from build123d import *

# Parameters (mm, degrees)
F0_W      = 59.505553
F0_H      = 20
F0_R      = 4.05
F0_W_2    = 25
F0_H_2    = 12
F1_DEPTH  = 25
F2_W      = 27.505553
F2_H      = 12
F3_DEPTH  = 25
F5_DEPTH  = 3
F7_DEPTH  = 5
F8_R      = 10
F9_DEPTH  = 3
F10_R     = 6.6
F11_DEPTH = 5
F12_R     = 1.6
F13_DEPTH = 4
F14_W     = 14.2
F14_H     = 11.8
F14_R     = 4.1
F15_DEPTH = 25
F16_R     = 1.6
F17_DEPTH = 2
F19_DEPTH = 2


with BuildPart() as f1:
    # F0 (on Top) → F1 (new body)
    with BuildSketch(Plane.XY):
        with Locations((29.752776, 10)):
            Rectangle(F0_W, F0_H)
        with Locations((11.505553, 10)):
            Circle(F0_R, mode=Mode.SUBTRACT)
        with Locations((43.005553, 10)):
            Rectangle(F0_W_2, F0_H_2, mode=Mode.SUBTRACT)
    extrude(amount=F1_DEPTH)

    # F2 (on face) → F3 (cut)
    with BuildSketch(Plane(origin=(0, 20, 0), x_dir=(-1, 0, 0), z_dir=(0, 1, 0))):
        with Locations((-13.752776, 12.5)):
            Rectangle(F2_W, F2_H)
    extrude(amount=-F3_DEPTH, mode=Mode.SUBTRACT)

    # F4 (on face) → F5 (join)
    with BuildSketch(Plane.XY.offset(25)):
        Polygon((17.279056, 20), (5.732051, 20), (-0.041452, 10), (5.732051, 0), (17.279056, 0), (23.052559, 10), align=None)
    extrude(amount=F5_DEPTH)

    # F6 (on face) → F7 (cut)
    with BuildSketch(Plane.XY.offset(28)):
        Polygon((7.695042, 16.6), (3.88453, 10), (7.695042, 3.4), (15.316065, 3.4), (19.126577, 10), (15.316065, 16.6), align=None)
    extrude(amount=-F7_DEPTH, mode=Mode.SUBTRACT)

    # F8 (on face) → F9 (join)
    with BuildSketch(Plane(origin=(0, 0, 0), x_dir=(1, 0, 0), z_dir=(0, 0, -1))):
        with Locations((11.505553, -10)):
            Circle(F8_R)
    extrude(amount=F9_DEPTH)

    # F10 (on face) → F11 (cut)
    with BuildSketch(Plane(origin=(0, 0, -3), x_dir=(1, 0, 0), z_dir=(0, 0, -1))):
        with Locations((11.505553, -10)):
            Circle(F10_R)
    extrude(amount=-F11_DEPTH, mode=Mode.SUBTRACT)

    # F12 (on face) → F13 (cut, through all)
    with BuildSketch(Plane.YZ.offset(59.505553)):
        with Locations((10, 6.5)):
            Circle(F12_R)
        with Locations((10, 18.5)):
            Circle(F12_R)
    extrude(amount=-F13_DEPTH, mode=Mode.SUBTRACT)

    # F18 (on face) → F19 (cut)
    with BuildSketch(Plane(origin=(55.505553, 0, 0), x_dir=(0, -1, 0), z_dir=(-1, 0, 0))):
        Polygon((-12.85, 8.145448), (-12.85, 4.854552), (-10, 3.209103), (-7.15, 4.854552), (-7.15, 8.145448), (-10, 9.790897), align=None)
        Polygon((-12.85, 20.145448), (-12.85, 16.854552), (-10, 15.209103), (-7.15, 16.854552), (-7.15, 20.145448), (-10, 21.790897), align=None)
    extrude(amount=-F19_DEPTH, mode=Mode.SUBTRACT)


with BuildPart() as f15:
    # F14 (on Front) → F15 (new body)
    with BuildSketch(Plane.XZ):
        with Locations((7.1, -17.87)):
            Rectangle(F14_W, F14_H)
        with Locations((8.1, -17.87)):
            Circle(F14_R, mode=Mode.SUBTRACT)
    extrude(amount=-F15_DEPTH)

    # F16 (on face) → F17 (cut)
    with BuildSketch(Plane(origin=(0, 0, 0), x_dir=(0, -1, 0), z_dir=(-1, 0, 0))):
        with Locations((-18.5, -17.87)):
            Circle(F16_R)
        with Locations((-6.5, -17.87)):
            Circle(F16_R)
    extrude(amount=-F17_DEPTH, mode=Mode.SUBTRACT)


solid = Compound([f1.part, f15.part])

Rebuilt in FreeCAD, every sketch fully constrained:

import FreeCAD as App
import Part
import Sketcher

V = App.Vector
Q = App.Units.Quantity

doc = App.newDocument("Part")
body = doc.addObject("PartDesign::Body", "Body")

# Sketch on XY plane
sketch1 = body.newObject("Sketcher::SketchObject", "Sketch")
sketch1.AttachmentSupport = (doc.getObject("XY_Plane"), [""])
sketch1.MapMode = "FlatFace"
sketch1.addGeometry(Part.LineSegment(V(0, 20, 0), V(0, 0, 0)), False)
sketch1.addGeometry(Part.LineSegment(V(0, 0, 0), V(59.5, 0, 0)), False)
sketch1.addGeometry(Part.LineSegment(V(59.5, 0, 0), V(59.5, 20, 0)), False)
sketch1.addGeometry(Part.LineSegment(V(59.5, 20, 0), V(0, 20, 0)), False)
sketch1.addGeometry(Part.Circle(V(11.5, 10, 0), V(0, 0, 1), 4), False)
sketch1.addGeometry(Part.LineSegment(V(55.5, 4, 0), V(30.5, 4, 0)), False)
sketch1.addGeometry(Part.LineSegment(V(30.5, 4, 0), V(30.5, 16, 0)), False)
sketch1.addGeometry(Part.LineSegment(V(30.5, 16, 0), V(55.5, 16, 0)), False)
sketch1.addGeometry(Part.LineSegment(V(55.5, 16, 0), V(55.5, 4, 0)), False)
sketch1.addConstraint(Sketcher.Constraint("Coincident", 0, 2, 1, 1))
sketch1.addConstraint(Sketcher.Constraint("Coincident", 1, 2, 2, 1))
sketch1.addConstraint(Sketcher.Constraint("Coincident", 2, 2, 3, 1))
sketch1.addConstraint(Sketcher.Constraint("Coincident", 3, 2, 0, 1))
sketch1.addConstraint(Sketcher.Constraint("Coincident", 5, 2, 6, 1))
sketch1.addConstraint(Sketcher.Constraint("Coincident", 6, 2, 7, 1))
sketch1.addConstraint(Sketcher.Constraint("Coincident", 7, 2, 8, 1))
sketch1.addConstraint(Sketcher.Constraint("Coincident", 8, 2, 5, 1))
sketch1.addConstraint(Sketcher.Constraint("Vertical", 0))
sketch1.addConstraint(Sketcher.Constraint("Horizontal", 1))
sketch1.addConstraint(Sketcher.Constraint("Vertical", 2))
sketch1.addConstraint(Sketcher.Constraint("Horizontal", 3))
sketch1.addConstraint(Sketcher.Constraint("Horizontal", 5))
sketch1.addConstraint(Sketcher.Constraint("Vertical", 6))
sketch1.addConstraint(Sketcher.Constraint("Horizontal", 7))
sketch1.addConstraint(Sketcher.Constraint("Vertical", 8))
sketch1.addConstraint(Sketcher.Constraint("Coincident", 0, 2, -1, 1))
sketch1.addConstraint(Sketcher.Constraint("Diameter", 4, 8.1))
sketch1.addConstraint(Sketcher.Constraint("DistanceX", 5, 2, 5, 1, 25.0))
sketch1.addConstraint(Sketcher.Constraint("DistanceY", 0, 2, 0, 1, 20.0))
sketch1.addConstraint(Sketcher.Constraint("DistanceY", 6, 1, 6, 2, 12.0))
sketch1.addConstraint(Sketcher.Constraint("DistanceY", -1, 1, 4, 3, 10.0))
sketch1.addConstraint(Sketcher.Constraint("DistanceY", -1, 1, 5, 2, 4.0))
sketch1.addConstraint(Sketcher.Constraint("DistanceX", 4, 3, 1, 2, 48.0))
sketch1.addConstraint(Sketcher.Constraint("DistanceX", 4, 3, 5, 2, 19.0))
sketch1.addConstraint(Sketcher.Constraint("DistanceX", 1, 1, 1, 2, 59.505553))
pad1 = body.newObject("PartDesign::Pad", "Pad")
pad1.Profile = sketch1
pad1.Length = 25

# Sketch on XZ plane
sketch2 = body.newObject("Sketcher::SketchObject", "Sketch001")
sketch2.AttachmentSupport = (doc.getObject("XZ_Plane"), [""])
sketch2.MapMode = "FlatFace"
sketch2.AttachmentOffset = App.Placement(V(0, 0, -20), App.Rotation())
sketch2.addGeometry(Part.LineSegment(V(28, 18, 0), V(28, 6, 0)), False)
sketch2.addGeometry(Part.LineSegment(V(28, 6, 0), V(0, 6, 0)), False)
sketch2.addGeometry(Part.LineSegment(V(0, 6, 0), V(0, 18, 0)), False)
sketch2.addGeometry(Part.LineSegment(V(0, 18, 0), V(28, 18, 0)), False)
sketch2.addConstraint(Sketcher.Constraint("Coincident", 0, 2, 1, 1))
sketch2.addConstraint(Sketcher.Constraint("Coincident", 1, 2, 2, 1))
sketch2.addConstraint(Sketcher.Constraint("Coincident", 2, 2, 3, 1))
sketch2.addConstraint(Sketcher.Constraint("Coincident", 3, 2, 0, 1))
sketch2.addConstraint(Sketcher.Constraint("Vertical", 0))
sketch2.addConstraint(Sketcher.Constraint("Horizontal", 1))
sketch2.addConstraint(Sketcher.Constraint("Vertical", 2))
sketch2.addConstraint(Sketcher.Constraint("Horizontal", 3))
sketch2.addConstraint(Sketcher.Constraint("PointOnObject", 1, 2, -2))
sketch2.addConstraint(Sketcher.Constraint("DistanceY", 0, 2, 0, 1, 12.0))
sketch2.addConstraint(Sketcher.Constraint("DistanceY", -1, 1, 0, 2, 6.5))
sketch2.addConstraint(Sketcher.Constraint("DistanceX", 1, 2, 1, 1, 27.505553))
pocket1 = body.newObject("PartDesign::Pocket", "Pocket")
pocket1.Profile = sketch2
pocket1.Length = 25
pocket1.Reversed = True

# Sketch on XY plane
sketch3 = body.newObject("Sketcher::SketchObject", "Sketch002")
sketch3.AttachmentSupport = (doc.getObject("XY_Plane"), [""])
sketch3.MapMode = "FlatFace"
sketch3.AttachmentOffset = App.Placement(V(0, 0, 25), App.Rotation())
sketch3.addGeometry(Part.LineSegment(V(17, 20, 0), V(6, 20, 0)), False)
sketch3.addGeometry(Part.LineSegment(V(6, 20, 0), V(0, 10, 0)), False)
sketch3.addGeometry(Part.LineSegment(V(0, 10, 0), V(6, 0, 0)), False)
sketch3.addGeometry(Part.LineSegment(V(6, 0, 0), V(17, 0, 0)), False)
sketch3.addGeometry(Part.LineSegment(V(17, 0, 0), V(23, 10, 0)), False)
sketch3.addGeometry(Part.LineSegment(V(23, 10, 0), V(17, 20, 0)), False)
sketch3.addConstraint(Sketcher.Constraint("Coincident", 0, 2, 1, 1))
sketch3.addConstraint(Sketcher.Constraint("Coincident", 1, 2, 2, 1))
sketch3.addConstraint(Sketcher.Constraint("Coincident", 2, 2, 3, 1))
sketch3.addConstraint(Sketcher.Constraint("Coincident", 3, 2, 4, 1))
sketch3.addConstraint(Sketcher.Constraint("Coincident", 4, 2, 5, 1))
sketch3.addConstraint(Sketcher.Constraint("Coincident", 5, 2, 0, 1))
sketch3.addConstraint(Sketcher.Constraint("Horizontal", 0))
sketch3.addConstraint(Sketcher.Constraint("Horizontal", 3))
sketch3.addConstraint(Sketcher.Constraint("PointOnObject", 2, 2, -1))
sketch3.addConstraint(Sketcher.Constraint("Parallel", 1, 4))
sketch3.addConstraint(Sketcher.Constraint("Parallel", 2, 5))
sketch3.addConstraint(Sketcher.Constraint("Horizontal", 1, 2, 4, 2))
sketch3.addConstraint(Sketcher.Constraint("Vertical", 0, 2, 2, 2))
sketch3.addConstraint(Sketcher.Constraint("Vertical", 3, 2, 5, 2))
sketch3.addConstraint(Sketcher.Constraint("Angle", 1, Q("-120.000001 deg")))
sketch3.addConstraint(Sketcher.Constraint("DistanceY", -1, 1, 0, 2, 20.0))
sketch3.addConstraint(Sketcher.Constraint("DistanceX", 0, 2, 0, 1, 11.547005))
sketch3.addConstraint(Sketcher.Constraint("DistanceX", -1, 1, 0, 2, 5.732051))
pad2 = body.newObject("PartDesign::Pad", "Pad001")
pad2.Profile = sketch3
pad2.Length = 3

# Sketch on XY plane
sketch4 = body.newObject("Sketcher::SketchObject", "Sketch003")
sketch4.AttachmentSupport = (doc.getObject("XY_Plane"), [""])
sketch4.MapMode = "FlatFace"
sketch4.AttachmentOffset = App.Placement(V(0, 0, 28), App.Rotation())
sketch4.addGeometry(Part.LineSegment(V(8, 17, 0), V(4, 10, 0)), False)
sketch4.addGeometry(Part.LineSegment(V(4, 10, 0), V(8, 3, 0)), False)
sketch4.addGeometry(Part.LineSegment(V(8, 3, 0), V(15, 3, 0)), False)
sketch4.addGeometry(Part.LineSegment(V(15, 3, 0), V(19, 10, 0)), False)
sketch4.addGeometry(Part.LineSegment(V(19, 10, 0), V(15, 17, 0)), False)
sketch4.addGeometry(Part.LineSegment(V(15, 17, 0), V(8, 17, 0)), False)
sketch4.addConstraint(Sketcher.Constraint("Coincident", 0, 2, 1, 1))
sketch4.addConstraint(Sketcher.Constraint("Coincident", 1, 2, 2, 1))
sketch4.addConstraint(Sketcher.Constraint("Coincident", 2, 2, 3, 1))
sketch4.addConstraint(Sketcher.Constraint("Coincident", 3, 2, 4, 1))
sketch4.addConstraint(Sketcher.Constraint("Coincident", 4, 2, 5, 1))
sketch4.addConstraint(Sketcher.Constraint("Coincident", 5, 2, 0, 1))
sketch4.addConstraint(Sketcher.Constraint("Horizontal", 2))
sketch4.addConstraint(Sketcher.Constraint("Horizontal", 5))
sketch4.addConstraint(Sketcher.Constraint("Parallel", 0, 3))
sketch4.addConstraint(Sketcher.Constraint("Parallel", 1, 4))
sketch4.addConstraint(Sketcher.Constraint("Horizontal", 0, 2, 3, 2))
sketch4.addConstraint(Sketcher.Constraint("Vertical", 2, 2, 4, 2))
sketch4.addConstraint(Sketcher.Constraint("Vertical", 1, 2, 5, 2))
sketch4.addConstraint(Sketcher.Constraint("Angle", 0, Q("-120.000001 deg")))
sketch4.addConstraint(Sketcher.Constraint("DistanceY", -1, 1, 0, 2, 10.0))
sketch4.addConstraint(Sketcher.Constraint("DistanceY", -1, 1, 1, 2, 3.4))
sketch4.addConstraint(Sketcher.Constraint("DistanceX", 2, 1, 2, 2, 7.621023))
sketch4.addConstraint(Sketcher.Constraint("DistanceX", -1, 1, 0, 2, 3.88453))
pocket2 = body.newObject("PartDesign::Pocket", "Pocket001")
pocket2.Profile = sketch4
pocket2.Length = 5

# Sketch on XY plane
sketch5 = body.newObject("Sketcher::SketchObject", "Sketch004")
sketch5.AttachmentSupport = (doc.getObject("XY_Plane"), [""])
sketch5.MapMode = "FlatFace"
sketch5.addGeometry(Part.Circle(V(12, 10, 0), V(0, 0, 1), 10), False)
sketch5.addConstraint(Sketcher.Constraint("Diameter", 0, 20.0))
sketch5.addConstraint(Sketcher.Constraint("DistanceY", -1, 1, 0, 3, 10.0))
sketch5.addConstraint(Sketcher.Constraint("DistanceX", -1, 1, 0, 3, 11.505553))
pad3 = body.newObject("PartDesign::Pad", "Pad002")
pad3.Profile = sketch5
pad3.Length = 3
pad3.Reversed = True

# Sketch on XY plane
sketch6 = body.newObject("Sketcher::SketchObject", "Sketch005")
sketch6.AttachmentSupport = (doc.getObject("XY_Plane"), [""])
sketch6.MapMode = "FlatFace"
sketch6.AttachmentOffset = App.Placement(V(0, 0, -3), App.Rotation())
sketch6.addGeometry(Part.Circle(V(12, 10, 0), V(0, 0, 1), 7), False)
sketch6.addConstraint(Sketcher.Constraint("Diameter", 0, 13.2))
sketch6.addConstraint(Sketcher.Constraint("DistanceY", -1, 1, 0, 3, 10.0))
sketch6.addConstraint(Sketcher.Constraint("DistanceX", -1, 1, 0, 3, 11.505553))
pocket3 = body.newObject("PartDesign::Pocket", "Pocket002")
pocket3.Profile = sketch6
pocket3.Length = 5
pocket3.Reversed = True

# Sketch on YZ plane
sketch7 = body.newObject("Sketcher::SketchObject", "Sketch006")
sketch7.AttachmentSupport = (doc.getObject("YZ_Plane"), [""])
sketch7.MapMode = "FlatFace"
sketch7.AttachmentOffset = App.Placement(V(0, 0, 59.505553), App.Rotation())
sketch7.addGeometry(Part.Circle(V(10, 6.5, 0), V(0, 0, 1), 1.6), False)
sketch7.addGeometry(Part.Circle(V(10, 18.5, 0), V(0, 0, 1), 1.6), False)
sketch7.addConstraint(Sketcher.Constraint("Equal", 0, 1))
sketch7.addConstraint(Sketcher.Constraint("Vertical", 0, 3, 1, 3))
sketch7.addConstraint(Sketcher.Constraint("Diameter", 0, 3.2))
sketch7.addConstraint(Sketcher.Constraint("DistanceX", -1, 1, 0, 3, 10.0))
sketch7.addConstraint(Sketcher.Constraint("DistanceY", 0, 3, 1, 3, 12.0))
sketch7.addConstraint(Sketcher.Constraint("DistanceY", -1, 1, 0, 3, 6.5))
pocket4 = body.newObject("PartDesign::Pocket", "Pocket003")
pocket4.Profile = sketch7
pocket4.Length = 4

# Sketch on YZ plane
sketch8 = body.newObject("Sketcher::SketchObject", "Sketch007")
sketch8.AttachmentSupport = (doc.getObject("YZ_Plane"), [""])
sketch8.MapMode = "FlatFace"
sketch8.AttachmentOffset = App.Placement(V(0, 0, 55.505553), App.Rotation())
sketch8.addGeometry(Part.LineSegment(V(12.8, 8.1, 0), V(12.8, 4.9, 0)), False)
sketch8.addGeometry(Part.LineSegment(V(12.8, 4.9, 0), V(10, 3.2, 0)), False)
sketch8.addGeometry(Part.LineSegment(V(10, 3.2, 0), V(7.2, 4.9, 0)), False)
sketch8.addGeometry(Part.LineSegment(V(7.2, 4.9, 0), V(7.2, 8.1, 0)), False)
sketch8.addGeometry(Part.LineSegment(V(7.2, 8.1, 0), V(10, 9.8, 0)), False)
sketch8.addGeometry(Part.LineSegment(V(10, 9.8, 0), V(12.8, 8.1, 0)), False)
sketch8.addGeometry(Part.LineSegment(V(12.8, 20.1, 0), V(12.8, 16.9, 0)), False)
sketch8.addGeometry(Part.LineSegment(V(12.8, 16.9, 0), V(10, 15.2, 0)), False)
sketch8.addGeometry(Part.LineSegment(V(10, 15.2, 0), V(7.2, 16.9, 0)), False)
sketch8.addGeometry(Part.LineSegment(V(7.2, 16.9, 0), V(7.2, 20.1, 0)), False)
sketch8.addGeometry(Part.LineSegment(V(7.2, 20.1, 0), V(10, 21.8, 0)), False)
sketch8.addGeometry(Part.LineSegment(V(10, 21.8, 0), V(12.8, 20.1, 0)), False)
sketch8.addConstraint(Sketcher.Constraint("Coincident", 0, 2, 1, 1))
sketch8.addConstraint(Sketcher.Constraint("Coincident", 1, 2, 2, 1))
sketch8.addConstraint(Sketcher.Constraint("Coincident", 2, 2, 3, 1))
sketch8.addConstraint(Sketcher.Constraint("Coincident", 3, 2, 4, 1))
sketch8.addConstraint(Sketcher.Constraint("Coincident", 4, 2, 5, 1))
sketch8.addConstraint(Sketcher.Constraint("Coincident", 5, 2, 0, 1))
sketch8.addConstraint(Sketcher.Constraint("Coincident", 6, 2, 7, 1))
sketch8.addConstraint(Sketcher.Constraint("Coincident", 7, 2, 8, 1))
sketch8.addConstraint(Sketcher.Constraint("Coincident", 8, 2, 9, 1))
sketch8.addConstraint(Sketcher.Constraint("Coincident", 9, 2, 10, 1))
sketch8.addConstraint(Sketcher.Constraint("Coincident", 10, 2, 11, 1))
sketch8.addConstraint(Sketcher.Constraint("Coincident", 11, 2, 6, 1))
sketch8.addConstraint(Sketcher.Constraint("Vertical", 0))
sketch8.addConstraint(Sketcher.Constraint("Vertical", 3))
sketch8.addConstraint(Sketcher.Constraint("Vertical", 6))
sketch8.addConstraint(Sketcher.Constraint("Vertical", 9))
sketch8.addConstraint(Sketcher.Constraint("Parallel", 1, 4))
sketch8.addConstraint(Sketcher.Constraint("Parallel", 2, 5))
sketch8.addConstraint(Sketcher.Constraint("Parallel", 4, 7))
sketch8.addConstraint(Sketcher.Constraint("Parallel", 5, 8))
sketch8.addConstraint(Sketcher.Constraint("Parallel", 7, 10))
sketch8.addConstraint(Sketcher.Constraint("Parallel", 8, 11))
sketch8.addConstraint(Sketcher.Constraint("Horizontal", 0, 2, 2, 2))
sketch8.addConstraint(Sketcher.Constraint("Horizontal", 3, 2, 5, 2))
sketch8.addConstraint(Sketcher.Constraint("Horizontal", 6, 2, 8, 2))
sketch8.addConstraint(Sketcher.Constraint("Horizontal", 9, 2, 11, 2))
sketch8.addConstraint(Sketcher.Constraint("Vertical", 1, 2, 4, 2))
sketch8.addConstraint(Sketcher.Constraint("Vertical", 5, 2, 6, 2))
sketch8.addConstraint(Sketcher.Constraint("Vertical", 4, 2, 7, 2))
sketch8.addConstraint(Sketcher.Constraint("Equal", 3, 6))
sketch8.addConstraint(Sketcher.Constraint("Angle", 1, Q("-149.999989 deg")))
sketch8.addConstraint(Sketcher.Constraint("DistanceX", -1, 1, 1, 2, 10.0))
sketch8.addConstraint(Sketcher.Constraint("DistanceY", 0, 2, 6, 2, 12.0))
sketch8.addConstraint(Sketcher.Constraint("DistanceX", 2, 2, 0, 2, 5.7))
sketch8.addConstraint(Sketcher.Constraint("DistanceY", 0, 2, 0, 1, 3.290896))
sketch8.addConstraint(Sketcher.Constraint("DistanceY", -1, 1, 0, 2, 4.854552))
pocket5 = body.newObject("PartDesign::Pocket", "Pocket004")
pocket5.Profile = sketch8
pocket5.Length = 2
pocket5.Reversed = True
body2 = doc.addObject("PartDesign::Body", "Body001")

# Sketch on XZ plane
sketch9 = body2.newObject("Sketcher::SketchObject", "Sketch008")
sketch9.AttachmentSupport = (doc.getObject("XZ_Plane001"), [""])
sketch9.MapMode = "FlatFace"
sketch9.addGeometry(Part.LineSegment(V(0, -12, 0), V(0, -23.8, 0)), False)
sketch9.addGeometry(Part.LineSegment(V(0, -23.8, 0), V(14.2, -23.8, 0)), False)
sketch9.addGeometry(Part.LineSegment(V(14.2, -23.8, 0), V(14.2, -12, 0)), False)
sketch9.addGeometry(Part.LineSegment(V(14.2, -12, 0), V(0, -12, 0)), False)
sketch9.addGeometry(Part.Circle(V(8.1, -17.9, 0), V(0, 0, 1), 4.1), False)
sketch9.addConstraint(Sketcher.Constraint("Coincident", 0, 2, 1, 1))
sketch9.addConstraint(Sketcher.Constraint("Coincident", 1, 2, 2, 1))
sketch9.addConstraint(Sketcher.Constraint("Coincident", 2, 2, 3, 1))
sketch9.addConstraint(Sketcher.Constraint("Coincident", 3, 2, 0, 1))
sketch9.addConstraint(Sketcher.Constraint("Vertical", 0))
sketch9.addConstraint(Sketcher.Constraint("Horizontal", 1))
sketch9.addConstraint(Sketcher.Constraint("Vertical", 2))
sketch9.addConstraint(Sketcher.Constraint("Horizontal", 3))
sketch9.addConstraint(Sketcher.Constraint("PointOnObject", 0, 2, -2))
sketch9.addConstraint(Sketcher.Constraint("Diameter", 4, 8.2))
sketch9.addConstraint(Sketcher.Constraint("DistanceX", 1, 1, 1, 2, 14.2))
sketch9.addConstraint(Sketcher.Constraint("DistanceY", 0, 2, 0, 1, 11.8))
sketch9.addConstraint(Sketcher.Constraint("DistanceX", -1, 1, 4, 3, 8.1))
sketch9.addConstraint(Sketcher.Constraint("DistanceY", 0, 2, 4, 3, 5.9))
sketch9.addConstraint(Sketcher.Constraint("DistanceY", 4, 3, -1, 1, 17.87))
pad4 = body2.newObject("PartDesign::Pad", "Pad003")
pad4.Profile = sketch9
pad4.Length = 25
pad4.Reversed = True

# Sketch on YZ plane
sketch10 = body2.newObject("Sketcher::SketchObject", "Sketch009")
sketch10.AttachmentSupport = (doc.getObject("YZ_Plane001"), [""])
sketch10.MapMode = "FlatFace"
sketch10.addGeometry(Part.Circle(V(18.5, -17.9, 0), V(0, 0, 1), 1.6), False)
sketch10.addGeometry(Part.Circle(V(6.5, -17.9, 0), V(0, 0, 1), 1.6), False)
sketch10.addConstraint(Sketcher.Constraint("Equal", 0, 1))
sketch10.addConstraint(Sketcher.Constraint("Horizontal", 0, 3, 1, 3))
sketch10.addConstraint(Sketcher.Constraint("Diameter", 0, 3.2))
sketch10.addConstraint(Sketcher.Constraint("DistanceX", 1, 3, 0, 3, 12.0))
sketch10.addConstraint(Sketcher.Constraint("DistanceX", -1, 1, 0, 3, 18.5))
sketch10.addConstraint(Sketcher.Constraint("DistanceY", 0, 3, -1, 1, 17.87))
pocket6 = body2.newObject("PartDesign::Pocket", "Pocket005")
pocket6.Profile = sketch10
pocket6.Length = 2
pocket6.Reversed = True

doc.recompute()
